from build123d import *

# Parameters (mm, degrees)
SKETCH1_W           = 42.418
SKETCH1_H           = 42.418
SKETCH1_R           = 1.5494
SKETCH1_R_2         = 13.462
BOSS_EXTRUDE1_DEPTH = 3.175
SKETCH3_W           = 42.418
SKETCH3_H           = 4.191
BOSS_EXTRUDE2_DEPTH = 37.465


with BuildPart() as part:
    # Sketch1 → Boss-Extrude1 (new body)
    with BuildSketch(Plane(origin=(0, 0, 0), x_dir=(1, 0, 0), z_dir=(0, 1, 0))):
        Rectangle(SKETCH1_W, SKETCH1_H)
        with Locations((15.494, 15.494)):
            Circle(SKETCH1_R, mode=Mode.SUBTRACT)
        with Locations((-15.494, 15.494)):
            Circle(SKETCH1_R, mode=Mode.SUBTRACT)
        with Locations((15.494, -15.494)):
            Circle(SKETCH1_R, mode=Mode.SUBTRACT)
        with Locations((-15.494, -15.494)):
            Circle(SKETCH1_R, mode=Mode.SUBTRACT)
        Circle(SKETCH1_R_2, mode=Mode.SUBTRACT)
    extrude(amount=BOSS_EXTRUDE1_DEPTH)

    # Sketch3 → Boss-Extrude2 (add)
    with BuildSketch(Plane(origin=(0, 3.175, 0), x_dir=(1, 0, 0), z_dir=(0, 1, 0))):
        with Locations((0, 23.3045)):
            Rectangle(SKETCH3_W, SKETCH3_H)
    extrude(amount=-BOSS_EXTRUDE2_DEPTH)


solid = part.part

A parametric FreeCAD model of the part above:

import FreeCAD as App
import Part
import Sketcher
Q = App.Units.Quantity


def add_polygon(sketch, points):
    """Adds a closed chain of lines whose ends are joined by coincident constraints."""
    first, n = sketch.GeometryCount, len(points)
    for a, b in zip(points, points[1:] + points[:1]):
        sketch.addGeometry(Part.LineSegment(App.Vector(*a, 0), App.Vector(*b, 0)), False)
    for i in range(n):
        sketch.addConstraint(Sketcher.Constraint("Coincident", first + i, 2, first + (i + 1) % n, 1))

doc = App.newDocument("Part")
body = doc.addObject("PartDesign::Body", "Body")

# Sketch on XZ plane
sketch1 = body.newObject("Sketcher::SketchObject", "Sketch")
sketch1.AttachmentSupport = (doc.getObject("XZ_Plane"), [""])
sketch1.MapMode = "FlatFace"
add_polygon(sketch1, [(-21.2, -21.2), (-21.2, 21.2), (21.2, 21.2), (21.2, -21.2)])  # lines 0-3
sketch1.addGeometry(Part.Circle(App.Vector(-15.5, 15.5, 0), App.Vector(0, 0, 1), 1.5), False)  # 4
sketch1.addGeometry(Part.Circle(App.Vector(15.5, 15.5, 0), App.Vector(0, 0, 1), 1.5), False)  # 5
sketch1.addGeometry(Part.Circle(App.Vector(-15.5, -15.5, 0), App.Vector(0, 0, 1), 1.5), False)  # 6
sketch1.addGeometry(Part.Circle(App.Vector(0, 0, 0), App.Vector(0, 0, 1), 13.5), False)  # 7
sketch1.addGeometry(Part.Circle(App.Vector(15.5, -15.5, 0), App.Vector(0, 0, 1), 1.5), False)  # 8
sketch1.addConstraint([
    Sketcher.Constraint("Vertical", 0),
    Sketcher.Constraint("Horizontal", 1),
    Sketcher.Constraint("Vertical", 2),
    Sketcher.Constraint("Horizontal", 3),
    Sketcher.Constraint("Coincident", 7, 3, -1, 1),
    Sketcher.Constraint("Equal", 4, 5),
    Sketcher.Constraint("Equal", 5, 6),
    Sketcher.Constraint("Equal", 6, 8),
    Sketcher.Constraint("Symmetric", 5, 3, 6, 3, -1, 1),
    Sketcher.Constraint("Symmetric", 4, 3, 8, 3, -1, 1),
    Sketcher.Constraint("Symmetric", 0, 2, 2, 2, -1, 1),
    Sketcher.Constraint("Symmetric", 4, 3, 5, 3, -2),
    Sketcher.Constraint("Equal", 3, 0),
    Sketcher.Constraint("Diameter", 7, Q("1.06 in")),
    Sketcher.Constraint("Diameter", 4, Q("0.122 in")),
    Sketcher.Constraint("DistanceX", 1, 1, 1, 2, Q("1.67 in")),
    Sketcher.Constraint("DistanceX", 4, 3, -1, 1, Q("0.61 in")),
    Sketcher.Constraint("DistanceY", -1, 1, 4, 3, Q("0.61 in")),
])
pad1 = body.newObject("PartDesign::Pad", "Pad")
pad1.Profile = sketch1
pad1.Length = Q("0.125 in")
pad1.Reversed = True

# Sketch on XZ plane
sketch2 = body.newObject("Sketcher::SketchObject", "Sketch001")
sketch2.AttachmentSupport = (doc.getObject("XZ_Plane"), [""])
sketch2.MapMode = "FlatFace"
sketch2.AttachmentOffset = App.Placement(App.Vector(0, 0, -0.125 * 25.4), App.Rotation())
add_polygon(sketch2, [(-21.2, -25.4), (-21.2, -21.2), (21.2, -21.2), (21.2, -25.4)])  # lines 0-3
sketch2.addConstraint([
    Sketcher.Constraint("Vertical", 0),
    Sketcher.Constraint("Horizontal", 1),
    Sketcher.Constraint("Vertical", 2),
    Sketcher.Constraint("Horizontal", 3),
    Sketcher.Constraint("DistanceY", 2, 2, -1, 1, Q("1 in")),
    Sketcher.Constraint("DistanceX", 1, 1, 1, 2, Q("1.67 in")),
    Sketcher.Constraint("DistanceY", 0, 1, 0, 2, Q("0.165 in")),
    Sketcher.Constraint("DistanceX", 0, 2, -1, 1, Q("0.835 in")),
])
pad2 = body.newObject("PartDesign::Pad", "Pad001")
pad2.Profile = sketch2
pad2.Length = Q("1.475 in")

doc.recompute()
